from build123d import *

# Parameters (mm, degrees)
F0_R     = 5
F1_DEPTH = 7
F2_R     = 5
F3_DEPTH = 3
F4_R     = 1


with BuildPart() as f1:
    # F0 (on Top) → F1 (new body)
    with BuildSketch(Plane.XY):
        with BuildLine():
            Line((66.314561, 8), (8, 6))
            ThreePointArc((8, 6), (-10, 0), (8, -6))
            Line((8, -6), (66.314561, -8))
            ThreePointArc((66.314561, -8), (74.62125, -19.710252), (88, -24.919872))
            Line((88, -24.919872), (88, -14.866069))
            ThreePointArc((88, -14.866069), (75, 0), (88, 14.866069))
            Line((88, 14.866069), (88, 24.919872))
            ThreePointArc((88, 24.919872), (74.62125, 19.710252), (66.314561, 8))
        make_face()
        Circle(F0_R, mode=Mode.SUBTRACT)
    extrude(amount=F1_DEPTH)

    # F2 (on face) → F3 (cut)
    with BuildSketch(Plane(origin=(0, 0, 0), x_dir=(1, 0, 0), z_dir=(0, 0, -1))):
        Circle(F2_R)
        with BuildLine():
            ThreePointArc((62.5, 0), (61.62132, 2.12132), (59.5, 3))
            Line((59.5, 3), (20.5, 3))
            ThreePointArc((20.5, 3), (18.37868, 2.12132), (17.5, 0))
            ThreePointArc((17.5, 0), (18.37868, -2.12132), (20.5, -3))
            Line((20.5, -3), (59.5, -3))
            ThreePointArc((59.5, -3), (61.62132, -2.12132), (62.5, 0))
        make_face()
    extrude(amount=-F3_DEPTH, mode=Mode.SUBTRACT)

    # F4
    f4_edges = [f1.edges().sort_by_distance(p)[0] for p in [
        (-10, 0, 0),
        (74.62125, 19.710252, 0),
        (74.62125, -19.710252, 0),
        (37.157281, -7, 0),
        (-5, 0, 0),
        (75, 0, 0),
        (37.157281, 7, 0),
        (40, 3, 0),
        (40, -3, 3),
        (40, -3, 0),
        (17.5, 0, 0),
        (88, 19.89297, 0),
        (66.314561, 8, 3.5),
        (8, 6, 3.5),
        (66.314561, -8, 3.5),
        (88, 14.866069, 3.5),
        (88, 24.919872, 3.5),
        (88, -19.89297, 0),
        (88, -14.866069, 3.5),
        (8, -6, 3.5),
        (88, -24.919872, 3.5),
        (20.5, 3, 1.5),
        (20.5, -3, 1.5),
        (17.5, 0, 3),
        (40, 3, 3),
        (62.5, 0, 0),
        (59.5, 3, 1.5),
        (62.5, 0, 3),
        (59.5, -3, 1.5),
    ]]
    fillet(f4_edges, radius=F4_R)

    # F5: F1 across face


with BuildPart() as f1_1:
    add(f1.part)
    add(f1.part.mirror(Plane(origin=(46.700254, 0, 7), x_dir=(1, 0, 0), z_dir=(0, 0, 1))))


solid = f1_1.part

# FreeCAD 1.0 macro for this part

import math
import FreeCAD as App
import Part
import Sketcher
from FreeCAD import Vector
Q = App.Units.Quantity


def edges_at(feature, points):
    """Names of the edges that pass closest to the given points."""
    edges = feature.Shape.Edges
    near = lambda p: min(range(len(edges)), key=lambda i: edges[i].distToShape(Part.Vertex(*p))[0])
    return sorted({f"Edge{near(p) + 1}" for p in points})

doc = App.newDocument("Part")
body = doc.addObject("PartDesign::Body", "Body")

sketch1 = body.newObject("Sketcher::SketchObject", "Sketch")
sketch1.AttachmentSupport = (doc.getObject("XY_Plane"), [""])
sketch1.MapMode = "FlatFace"
sketch1.addGeometry(Part.LineSegment(Vector(66.314561, 8, 0), Vector(8, 6, 0)), False)
sketch1.addGeometry(Part.ArcOfCircle(Part.Circle(Vector(0, 0, 0), Vector(0, 0, 1), 10), math.radians(36.869898), math.radians(323.130102)), False)
sketch1.addGeometry(Part.LineSegment(Vector(8, -6, 0), Vector(66.314561, -8, 0)), False)
sketch1.addGeometry(Part.ArcOfCircle(Part.Circle(Vector(90.000003, 0.000003, 0), Vector(0, 0, 1), 25.000004), math.radians(-161.33707), math.radians(-94.588571)), False)
sketch1.addGeometry(Part.LineSegment(Vector(88, -24.919872, 0), Vector(88, -14.866069, 0)), False)
sketch1.addGeometry(Part.ArcOfCircle(Part.Circle(Vector(90, 0, 0), Vector(0, 0, 1), 15), math.radians(97.662257), math.radians(262.337743)), False)
sketch1.addGeometry(Part.LineSegment(Vector(88, 14.866069, 0), Vector(88, 24.919872, 0)), False)
sketch1.addGeometry(Part.ArcOfCircle(Part.Circle(Vector(90.000003, -0.000003, 0), Vector(0, 0, 1), 25.000004), math.radians(94.588571), math.radians(161.33707)), False)
sketch1.addGeometry(Part.Circle(Vector(0, 0, 0), Vector(0, 0, 1), 5), False)
sketch1.addConstraint(Sketcher.Constraint("Coincident", 0, 2, 1, 1))
sketch1.addConstraint(Sketcher.Constraint("Coincident", 1, 2, 2, 1))
sketch1.addConstraint(Sketcher.Constraint("Coincident", 2, 2, 3, 1))
sketch1.addConstraint(Sketcher.Constraint("Coincident", 3, 2, 4, 1))
sketch1.addConstraint(Sketcher.Constraint("Coincident", 4, 2, 5, 2))
sketch1.addConstraint(Sketcher.Constraint("Coincident", 5, 1, 6, 1))
sketch1.addConstraint(Sketcher.Constraint("Coincident", 6, 2, 7, 1))
sketch1.addConstraint(Sketcher.Constraint("Coincident", 7, 2, 0, 1))
sketch1.addConstraint(Sketcher.Constraint("Vertical", 4))
sketch1.addConstraint(Sketcher.Constraint("Vertical", 6))
sketch1.addConstraint(Sketcher.Constraint("Coincident", 1, 3, -1, 1))
sketch1.addConstraint(Sketcher.Constraint("Coincident", 8, 3, -1, 1))
sketch1.addConstraint(Sketcher.Constraint("Coincident", 5, 3, 3, 3))
sketch1.addConstraint(Sketcher.Constraint("Coincident", 7, 3, 3, 3))
sketch1.addConstraint(Sketcher.Constraint("Equal", 3, 7))
sketch1.addConstraint(Sketcher.Constraint("Symmetric", 4, 2, 5, 1, -1))
sketch1.addConstraint(Sketcher.Constraint("Vertical", 0, 2, 1, 2))
sketch1.addConstraint(Sketcher.Constraint("Vertical", 2, 2, 7, 2))
sketch1.addConstraint(Sketcher.Constraint("Diameter", 8, Q("10 mm")))
sketch1.addConstraint(Sketcher.Constraint("Radius", 1, Q("10 mm")))
sketch1.addConstraint(Sketcher.Constraint("Radius", 5, Q("15 mm")))
sketch1.addConstraint(Sketcher.Constraint("DistanceX", -1, 1, 5, 3, Q("90 mm")))
sketch1.addConstraint(Sketcher.Constraint("DistanceX", -1, 1, 0, 2, Q("8 mm")))
sketch1.addConstraint(Sketcher.Constraint("DistanceY", 2, 2, -1, 1, Q("8 mm")))
sketch1.addConstraint(Sketcher.Constraint("DistanceX", -1, 1, 3, 2, Q("88 mm")))
sketch1.addConstraint(Sketcher.Constraint("Radius", 3, Q("25.000004 mm")))
pad1 = body.newObject("PartDesign::Pad", "Pad")
pad1.Profile = sketch1
pad1.Length = 7

sketch2 = body.newObject("Sketcher::SketchObject", "Sketch001")
sketch2.AttachmentSupport = (doc.getObject("XY_Plane"), [""])
sketch2.MapMode = "FlatFace"
sketch2.addGeometry(Part.Circle(Vector(0, 0, 0), Vector(0, 0, 1), 5), False)
sketch2.addGeometry(Part.ArcOfCircle(Part.Circle(Vector(59.499999, 0.000001, 0), Vector(0, 0, 1), 3.000001), math.radians(-89.999978), math.radians(-0.000022)), False)
sketch2.addGeometry(Part.LineSegment(Vector(59.5, -3, 0), Vector(20.5, -3, 0)), False)
sketch2.addGeometry(Part.ArcOfCircle(Part.Circle(Vector(20.500001, 0.000001, 0), Vector(0, 0, 1), 3.000001), math.radians(-179.999978), math.radians(-90.000022)), False)
sketch2.addGeometry(Part.ArcOfCircle(Part.Circle(Vector(20.500001, -0.000001, 0), Vector(0, 0, 1), 3.000001), math.radians(90.000022), math.radians(179.999978)), False)
sketch2.addGeometry(Part.LineSegment(Vector(20.5, 3, 0), Vector(59.5, 3, 0)), False)
sketch2.addGeometry(Part.ArcOfCircle(Part.Circle(Vector(59.499999, -0.000001, 0), Vector(0, 0, 1), 3.000001), math.radians(0.000022), math.radians(89.999978)), False)
sketch2.addConstraint(Sketcher.Constraint("Tangent", 1, 1, 2, 1))
sketch2.addConstraint(Sketcher.Constraint("Tangent", 2, 2, 3, 2))
sketch2.addConstraint(Sketcher.Constraint("Tangent", 3, 1, 4, 2))
sketch2.addConstraint(Sketcher.Constraint("Tangent", 4, 1, 5, 1))
sketch2.addConstraint(Sketcher.Constraint("Tangent", 5, 2, 6, 2))
sketch2.addConstraint(Sketcher.Constraint("Tangent", 6, 1, 1, 2))
sketch2.addConstraint(Sketcher.Constraint("Horizontal", 2))
sketch2.addConstraint(Sketcher.Constraint("Horizontal", 5))
sketch2.addConstraint(Sketcher.Constraint("Coincident", 0, 3, -1, 1))
sketch2.addConstraint(Sketcher.Constraint("Equal", 1, 3))
sketch2.addConstraint(Sketcher.Constraint("Equal", 3, 4))
sketch2.addConstraint(Sketcher.Constraint("PointOnObject", 1, 3, -1))
sketch2.addConstraint(Sketcher.Constraint("PointOnObject", 3, 1, -1))
sketch2.addConstraint(Sketcher.Constraint("PointOnObject", 6, 1, -1))
sketch2.addConstraint(Sketcher.Constraint("Diameter", 0, Q("10 mm")))
sketch2.addConstraint(Sketcher.Constraint("Radius", 1, Q("3.000001 mm")))
sketch2.addConstraint(Sketcher.Constraint("DistanceX", 2, 2, 2, 1, Q("39 mm")))
sketch2.addConstraint(Sketcher.Constraint("DistanceX", -1, 1, 1, 3, Q("59.499999 mm")))
pocket1 = body.newObject("PartDesign::Pocket", "Pocket")
pocket1.Profile = sketch2
pocket1.Length = 3
pocket1.Reversed = True
doc.recompute()

fillet = body.newObject("PartDesign::Fillet", "Fillet")
fillet.Base = (pocket1, edges_at(pocket1, [
    (-10, 0, 0),
    (74.621, 19.71, 0),
    (74.621, -19.71, 0),
    (37.157, -7, 0),
    (-5, 0, 0),
    (75, 0, 0),
    (37.157, 7, 0),
    (40, 3, 0),
    (40, -3, 3),
    (40, -3, 0),
    (18.379, 2.121, 0),
    (88, 19.893, 0),
    (66.315, 8, 3.5),
    (8, 6, 3.5),
    (66.315, -8, 3.5),
    (88, 14.866, 3.5),
    (88, 24.92, 3.5),
    (88, -19.893, 0),
    (88, -14.866, 3.5),
    (8, -6, 3.5),
    (88, -24.92, 3.5),
    (20.5, 3, 1.5),
    (20.5, -3, 1.5),
    (18.379, -2.121, 3),
    (40, 3, 3),
    (61.621, 2.121, 0),
    (59.5, 3, 1.5),
    (62.5, 0, 1.5),
    (59.5, -3, 1.5),
]))
fillet.Radius = 1
body2 = doc.addObject("PartDesign::Body", "Body001")
doc.recompute()

body2.BaseFeature = body
doc.recompute()

mirroring = doc.addObject("Part::Mirroring", "Mirroring")
mirroring.Source = body
mirroring.Base = Vector(46.700254, 0, 7)
mirroring.Normal = Vector(0, 0, 1)
body3 = doc.addObject("PartDesign::Body", "Body002")
body3.BaseFeature = mirroring
boolean = body2.newObject("PartDesign::Boolean", "Boolean")
boolean.Type = "Fuse"
boolean.addObjects([body3])
doc.recompute()
mirroring.Visibility = False

doc.recompute()
